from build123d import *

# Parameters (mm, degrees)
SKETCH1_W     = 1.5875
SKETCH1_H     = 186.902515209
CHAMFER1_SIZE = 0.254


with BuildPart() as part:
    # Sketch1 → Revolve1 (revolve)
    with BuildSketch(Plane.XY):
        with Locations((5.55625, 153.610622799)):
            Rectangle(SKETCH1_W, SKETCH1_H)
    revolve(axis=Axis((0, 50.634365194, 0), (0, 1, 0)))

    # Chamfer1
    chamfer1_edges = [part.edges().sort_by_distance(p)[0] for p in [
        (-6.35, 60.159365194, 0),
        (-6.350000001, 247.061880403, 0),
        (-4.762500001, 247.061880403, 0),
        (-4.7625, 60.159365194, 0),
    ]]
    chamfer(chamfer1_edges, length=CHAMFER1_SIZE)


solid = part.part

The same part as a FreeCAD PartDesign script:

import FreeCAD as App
import Part
import Sketcher
Q = App.Units.Quantity


def edges_at(feature, points):
    """Names of the edges that pass closest to the given points."""
    edges = feature.Shape.Edges
    near = lambda p: min(range(len(edges)), key=lambda i: edges[i].distToShape(Part.Vertex(*p))[0])
    return sorted({f"Edge{near(p) + 1}" for p in points})

doc = App.newDocument("Part")
params = doc.addObject("Spreadsheet::Sheet", "Params")
for row, (alias, value) in enumerate([
    ("sketch1_width", "0.0625 in"),
    ("revolution_angle", "360 deg"),
    ("chamfer_size", "0.01 in"),
], start=1):
    params.set(f"A{row}", alias)
    params.set(f"B{row}", "=" + value)
    params.setAlias(f"B{row}", alias)

body = doc.addObject("PartDesign::Body", "Body")

# Sketch on XY plane
sketch1 = doc.addObject("Sketcher::SketchObject", "Sketch")
body.addObject(sketch1)
sketch1.AttachmentSupport = (doc.XY_Plane, [""])
sketch1.MapMode = "FlatFace"
sketch1.addGeometry(Part.LineSegment(App.Vector(4.8, 247.1, 0), App.Vector(4.8, 60.2, 0)), False)
sketch1.addGeometry(Part.LineSegment(App.Vector(4.8, 60.2, 0), App.Vector(6.3, 60.2, 0)), False)
sketch1.addGeometry(Part.LineSegment(App.Vector(6.3, 60.2, 0), App.Vector(6.3, 247.1, 0)), False)
sketch1.addGeometry(Part.LineSegment(App.Vector(6.3, 247.1, 0), App.Vector(4.8, 247.1, 0)), False)
sketch1.addConstraint(Sketcher.Constraint("Coincident", 0, 2, 1, 1))
sketch1.addConstraint(Sketcher.Constraint("Coincident", 1, 2, 2, 1))
sketch1.addConstraint(Sketcher.Constraint("Coincident", 2, 2, 3, 1))
sketch1.addConstraint(Sketcher.Constraint("Coincident", 3, 2, 0, 1))
sketch1.addConstraint(Sketcher.Constraint("Vertical", 0))
sketch1.addConstraint(Sketcher.Constraint("Horizontal", 1))
sketch1.addConstraint(Sketcher.Constraint("Vertical", 2))
sketch1.addConstraint(Sketcher.Constraint("Horizontal", 3))
sketch1.addConstraint(Sketcher.Constraint("DistanceX", 1, 1, 1, 2, Q("0.0625 in")))
sketch1.addConstraint(Sketcher.Constraint("DistanceX", -1, 1, 1, 2, Q("0.25 in")))
sketch1.addConstraint(Sketcher.Constraint("DistanceY", 0, 2, 0, 1, 186.902515))
sketch1.addConstraint(Sketcher.Constraint("DistanceY", -1, 1, 2, 2, 247.06188))
sketch1.setExpression("Constraints[8]", "Params.sketch1_width")
revolution = doc.addObject("PartDesign::Revolution", "Revolution")
body.addObject(revolution)
revolution.Profile = sketch1
revolution.ReferenceAxis = (sketch1, ["V_Axis"])
revolution.setExpression("Angle", "Params.revolution_angle")
doc.recompute()

chamfer = doc.addObject("PartDesign::Chamfer", "Chamfer")
body.addObject(chamfer)
chamfer.Base = (revolution, edges_at(revolution, [
    (-6.35, 60.159, 0),
    (-6.35, 247.062, 0),
    (-4.763, 247.062, 0),
    (-4.763, 60.159, 0),
]))
chamfer.setExpression("Size", "Params.chamfer_size")

doc.recompute()
